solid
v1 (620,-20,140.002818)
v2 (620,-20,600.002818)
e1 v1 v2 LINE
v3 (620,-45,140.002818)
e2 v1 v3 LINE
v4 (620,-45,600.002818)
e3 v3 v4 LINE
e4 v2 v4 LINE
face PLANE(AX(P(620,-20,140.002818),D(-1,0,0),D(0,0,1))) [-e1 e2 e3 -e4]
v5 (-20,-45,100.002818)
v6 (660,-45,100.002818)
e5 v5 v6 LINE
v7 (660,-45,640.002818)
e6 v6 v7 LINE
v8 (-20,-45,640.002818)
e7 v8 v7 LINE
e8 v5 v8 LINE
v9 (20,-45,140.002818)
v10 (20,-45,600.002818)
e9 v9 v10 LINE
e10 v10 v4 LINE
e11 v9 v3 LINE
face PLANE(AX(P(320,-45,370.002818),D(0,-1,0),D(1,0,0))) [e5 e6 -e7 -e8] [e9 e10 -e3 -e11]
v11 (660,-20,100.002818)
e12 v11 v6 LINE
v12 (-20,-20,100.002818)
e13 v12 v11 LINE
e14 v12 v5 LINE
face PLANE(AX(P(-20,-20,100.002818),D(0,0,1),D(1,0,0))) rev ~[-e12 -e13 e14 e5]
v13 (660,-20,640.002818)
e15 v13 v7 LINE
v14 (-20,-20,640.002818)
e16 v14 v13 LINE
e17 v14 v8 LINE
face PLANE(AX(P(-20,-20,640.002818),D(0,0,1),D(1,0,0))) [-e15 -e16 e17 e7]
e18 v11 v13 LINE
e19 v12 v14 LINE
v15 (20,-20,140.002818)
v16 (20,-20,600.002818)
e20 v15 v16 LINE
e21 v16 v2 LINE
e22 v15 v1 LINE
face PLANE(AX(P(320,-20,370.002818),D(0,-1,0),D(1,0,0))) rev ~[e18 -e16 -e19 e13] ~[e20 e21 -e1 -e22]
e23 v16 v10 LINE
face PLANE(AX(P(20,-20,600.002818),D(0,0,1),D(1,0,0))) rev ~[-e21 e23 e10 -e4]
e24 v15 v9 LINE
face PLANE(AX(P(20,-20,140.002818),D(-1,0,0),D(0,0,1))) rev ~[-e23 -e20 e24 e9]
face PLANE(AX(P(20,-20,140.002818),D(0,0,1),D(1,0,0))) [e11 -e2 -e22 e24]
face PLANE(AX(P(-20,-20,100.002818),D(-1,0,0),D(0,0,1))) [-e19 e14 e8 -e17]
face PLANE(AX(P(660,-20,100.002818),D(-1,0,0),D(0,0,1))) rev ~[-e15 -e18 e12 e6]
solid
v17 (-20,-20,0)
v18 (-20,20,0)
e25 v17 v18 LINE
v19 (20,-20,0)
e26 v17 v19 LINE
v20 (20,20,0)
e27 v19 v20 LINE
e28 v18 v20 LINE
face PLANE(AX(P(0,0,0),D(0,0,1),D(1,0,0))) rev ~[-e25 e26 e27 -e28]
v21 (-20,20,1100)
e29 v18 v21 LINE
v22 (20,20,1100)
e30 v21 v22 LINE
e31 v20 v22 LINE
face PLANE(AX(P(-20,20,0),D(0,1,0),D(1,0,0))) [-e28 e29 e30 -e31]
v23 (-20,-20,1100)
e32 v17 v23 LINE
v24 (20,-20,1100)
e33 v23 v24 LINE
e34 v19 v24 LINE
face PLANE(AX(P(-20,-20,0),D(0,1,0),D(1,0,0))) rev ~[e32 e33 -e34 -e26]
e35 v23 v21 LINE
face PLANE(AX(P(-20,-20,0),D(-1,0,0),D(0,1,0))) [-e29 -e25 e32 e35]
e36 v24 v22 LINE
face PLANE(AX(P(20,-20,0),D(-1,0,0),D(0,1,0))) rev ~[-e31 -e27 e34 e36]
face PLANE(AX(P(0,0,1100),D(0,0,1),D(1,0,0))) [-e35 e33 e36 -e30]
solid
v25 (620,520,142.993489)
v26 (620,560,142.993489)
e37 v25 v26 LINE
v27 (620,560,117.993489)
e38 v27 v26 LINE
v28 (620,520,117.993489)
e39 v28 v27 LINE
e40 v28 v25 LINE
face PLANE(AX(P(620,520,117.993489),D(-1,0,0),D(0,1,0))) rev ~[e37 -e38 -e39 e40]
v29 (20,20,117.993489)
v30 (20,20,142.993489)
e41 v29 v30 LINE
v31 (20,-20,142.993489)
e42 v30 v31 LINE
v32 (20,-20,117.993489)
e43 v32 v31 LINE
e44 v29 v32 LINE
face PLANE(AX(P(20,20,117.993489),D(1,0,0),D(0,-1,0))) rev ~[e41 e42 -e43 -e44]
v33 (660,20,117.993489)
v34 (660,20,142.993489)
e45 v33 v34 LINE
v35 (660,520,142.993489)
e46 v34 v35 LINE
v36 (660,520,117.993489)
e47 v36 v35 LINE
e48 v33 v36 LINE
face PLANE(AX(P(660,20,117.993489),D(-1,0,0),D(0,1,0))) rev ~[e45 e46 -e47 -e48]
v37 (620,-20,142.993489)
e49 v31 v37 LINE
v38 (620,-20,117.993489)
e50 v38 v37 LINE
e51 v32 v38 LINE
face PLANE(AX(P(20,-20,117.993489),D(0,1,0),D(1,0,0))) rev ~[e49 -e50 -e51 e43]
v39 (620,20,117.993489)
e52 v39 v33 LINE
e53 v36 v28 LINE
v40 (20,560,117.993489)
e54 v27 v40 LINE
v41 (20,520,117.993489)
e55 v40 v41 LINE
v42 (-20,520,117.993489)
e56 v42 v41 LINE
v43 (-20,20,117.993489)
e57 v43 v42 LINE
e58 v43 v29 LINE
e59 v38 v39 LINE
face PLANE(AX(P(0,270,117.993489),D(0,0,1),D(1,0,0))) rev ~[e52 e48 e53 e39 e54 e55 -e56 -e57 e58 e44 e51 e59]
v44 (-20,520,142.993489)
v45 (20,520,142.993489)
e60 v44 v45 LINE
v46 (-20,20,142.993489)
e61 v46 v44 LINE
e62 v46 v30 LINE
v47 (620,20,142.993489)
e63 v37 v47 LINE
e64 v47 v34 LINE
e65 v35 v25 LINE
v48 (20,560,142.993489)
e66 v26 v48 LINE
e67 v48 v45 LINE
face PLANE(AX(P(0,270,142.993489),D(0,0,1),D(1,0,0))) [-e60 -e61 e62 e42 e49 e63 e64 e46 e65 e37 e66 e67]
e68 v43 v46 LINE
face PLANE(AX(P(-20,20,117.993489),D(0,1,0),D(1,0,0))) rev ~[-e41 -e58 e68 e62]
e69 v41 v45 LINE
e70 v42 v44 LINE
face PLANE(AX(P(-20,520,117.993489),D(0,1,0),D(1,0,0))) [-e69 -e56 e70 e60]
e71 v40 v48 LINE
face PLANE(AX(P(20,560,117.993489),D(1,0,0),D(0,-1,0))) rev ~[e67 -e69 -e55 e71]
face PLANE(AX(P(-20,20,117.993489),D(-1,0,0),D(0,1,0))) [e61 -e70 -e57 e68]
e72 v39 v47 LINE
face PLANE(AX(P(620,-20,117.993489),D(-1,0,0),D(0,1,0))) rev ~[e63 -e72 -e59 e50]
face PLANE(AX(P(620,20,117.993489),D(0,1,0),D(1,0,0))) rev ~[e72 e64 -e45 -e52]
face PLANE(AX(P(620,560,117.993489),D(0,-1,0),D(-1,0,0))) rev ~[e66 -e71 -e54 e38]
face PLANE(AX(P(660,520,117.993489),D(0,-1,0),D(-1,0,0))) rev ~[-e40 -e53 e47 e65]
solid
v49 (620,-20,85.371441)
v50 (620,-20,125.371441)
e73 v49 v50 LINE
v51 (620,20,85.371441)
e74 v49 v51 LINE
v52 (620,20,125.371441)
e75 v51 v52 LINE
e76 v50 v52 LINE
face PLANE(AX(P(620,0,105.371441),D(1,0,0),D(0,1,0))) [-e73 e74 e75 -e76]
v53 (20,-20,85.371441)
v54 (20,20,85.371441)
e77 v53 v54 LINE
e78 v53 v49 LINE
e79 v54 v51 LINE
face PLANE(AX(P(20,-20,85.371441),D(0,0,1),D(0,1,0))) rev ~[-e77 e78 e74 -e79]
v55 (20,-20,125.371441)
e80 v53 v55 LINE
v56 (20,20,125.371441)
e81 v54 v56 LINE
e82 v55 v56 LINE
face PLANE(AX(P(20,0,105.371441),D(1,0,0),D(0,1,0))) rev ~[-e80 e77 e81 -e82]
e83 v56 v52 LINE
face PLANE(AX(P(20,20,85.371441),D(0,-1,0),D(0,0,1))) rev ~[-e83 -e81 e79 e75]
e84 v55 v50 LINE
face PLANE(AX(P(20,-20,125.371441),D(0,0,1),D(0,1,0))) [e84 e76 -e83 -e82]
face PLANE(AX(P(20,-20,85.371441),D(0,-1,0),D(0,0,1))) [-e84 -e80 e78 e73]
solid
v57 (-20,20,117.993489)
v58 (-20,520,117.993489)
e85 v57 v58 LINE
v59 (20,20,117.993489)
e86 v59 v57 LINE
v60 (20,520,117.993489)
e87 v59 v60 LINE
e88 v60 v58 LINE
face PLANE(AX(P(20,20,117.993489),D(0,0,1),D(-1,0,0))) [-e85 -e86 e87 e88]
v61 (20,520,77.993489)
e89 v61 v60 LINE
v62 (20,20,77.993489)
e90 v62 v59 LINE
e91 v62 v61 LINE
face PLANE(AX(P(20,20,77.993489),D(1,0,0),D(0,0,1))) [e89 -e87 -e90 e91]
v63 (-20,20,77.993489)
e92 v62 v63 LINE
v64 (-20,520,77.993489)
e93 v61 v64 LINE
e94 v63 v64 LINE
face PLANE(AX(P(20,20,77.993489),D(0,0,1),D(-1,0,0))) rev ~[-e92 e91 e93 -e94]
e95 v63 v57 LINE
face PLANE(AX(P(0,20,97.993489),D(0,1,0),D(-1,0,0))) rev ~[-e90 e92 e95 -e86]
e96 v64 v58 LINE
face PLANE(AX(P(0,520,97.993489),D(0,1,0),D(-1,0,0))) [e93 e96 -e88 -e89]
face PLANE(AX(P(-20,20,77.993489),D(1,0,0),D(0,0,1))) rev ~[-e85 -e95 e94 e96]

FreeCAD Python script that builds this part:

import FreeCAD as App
import Part
import Sketcher

doc = App.newDocument("Part")
params = doc.addObject("Spreadsheet::Sheet", "Params")
for row, (alias, value) in enumerate([
    ("sketch1_width", "40 mm"),
    ("pad1_length", "1100 mm"),
    ("sketch2_width", "40 mm"),
    ("pad2_length", "600 mm"),
    ("sketch3_width", "40 mm"),
    ("pad3_length", "500 mm"),
    ("sketch4_width", "40 mm"),
    ("sketch4_width2", "600 mm"),
    ("sketch4_height", "500 mm"),
    ("pad4_length", "25 mm"),
    ("sketch5_width", "680 mm"),
    ("sketch5_width2", "600 mm"),
    ("sketch5_height", "540 mm"),
    ("sketch5_height2", "460 mm"),
    ("pad5_length", "25 mm"),
], start=1):
    params.set(f"A{row}", alias)
    params.set(f"B{row}", "=" + value)
    params.setAlias(f"B{row}", alias)

body = doc.addObject("PartDesign::Body", "Body")

# Sketch on XY plane
sketch1 = doc.addObject("Sketcher::SketchObject", "Sketch")
body.addObject(sketch1)
sketch1.AttachmentSupport = (doc.XY_Plane, [""])
sketch1.MapMode = "FlatFace"
sketch1.addGeometry([
    Part.LineSegment(App.Vector(-20, 20, 0), App.Vector(-20, -20, 0)),
    Part.LineSegment(App.Vector(-20, -20, 0), App.Vector(20, -20, 0)),
    Part.LineSegment(App.Vector(20, -20, 0), App.Vector(20, 20, 0)),
    Part.LineSegment(App.Vector(20, 20, 0), App.Vector(-20, 20, 0)),
], False)
sketch1.addConstraint([
    Sketcher.Constraint("Coincident", 0, 2, 1, 1),
    Sketcher.Constraint("Coincident", 1, 2, 2, 1),
    Sketcher.Constraint("Coincident", 2, 2, 3, 1),
    Sketcher.Constraint("Coincident", 3, 2, 0, 1),
    Sketcher.Constraint("Vertical", 0),
    Sketcher.Constraint("Horizontal", 1),
    Sketcher.Constraint("Vertical", 2),
    Sketcher.Constraint("Horizontal", 3),
    Sketcher.Constraint("Symmetric", 0, 2, 2, 2, -1, 1),
    Sketcher.Constraint("Equal", 3, 0),
    Sketcher.Constraint("DistanceX", 1, 1, 1, 2, 40.0),
])
sketch1.setExpression("Constraints[10]", "Params.sketch1_width")
pad1 = doc.addObject("PartDesign::Pad", "Pad")
body.addObject(pad1)
pad1.Profile = sketch1
pad1.setExpression("Length", "Params.pad1_length")
body2 = doc.addObject("PartDesign::Body", "Body001")

# Sketch on YZ plane
sketch2 = doc.addObject("Sketcher::SketchObject", "Sketch001")
body2.addObject(sketch2)
sketch2.AttachmentSupport = (doc.getObject("YZ_Plane001"), [""])
sketch2.MapMode = "FlatFace"
sketch2.AttachmentOffset = App.Placement(App.Vector(0, 0, 20), App.Rotation())
sketch2.addGeometry([
    Part.LineSegment(App.Vector(-20, 125.371441, 0), App.Vector(-20, 85.371441, 0)),
    Part.LineSegment(App.Vector(-20, 85.371441, 0), App.Vector(20, 85.371441, 0)),
    Part.LineSegment(App.Vector(20, 85.371441, 0), App.Vector(20, 125.371441, 0)),
    Part.LineSegment(App.Vector(20, 125.371441, 0), App.Vector(-20, 125.371441, 0)),
], False)
sketch2.addConstraint([
    Sketcher.Constraint("Coincident", 0, 2, 1, 1),
    Sketcher.Constraint("Coincident", 1, 2, 2, 1),
    Sketcher.Constraint("Coincident", 2, 2, 3, 1),
    Sketcher.Constraint("Coincident", 3, 2, 0, 1),
    Sketcher.Constraint("Vertical", 0),
    Sketcher.Constraint("Horizontal", 1),
    Sketcher.Constraint("Vertical", 2),
    Sketcher.Constraint("Horizontal", 3),
    Sketcher.Constraint("Equal", 3, 0),
    Sketcher.Constraint("DistanceX", 1, 1, 1, 2, 40.0),
    Sketcher.Constraint("DistanceX", 0, 2, -1, 1, 20.0),
    Sketcher.Constraint("DistanceY", -1, 1, 0, 2, 85.371441),
])
sketch2.setExpression("Constraints[9]", "Params.sketch2_width")
pad2 = doc.addObject("PartDesign::Pad", "Pad001")
body2.addObject(pad2)
pad2.Profile = sketch2
pad2.setExpression("Length", "Params.pad2_length")
body3 = doc.addObject("PartDesign::Body", "Body002")

# Sketch on XZ plane
sketch3 = doc.addObject("Sketcher::SketchObject", "Sketch002")
body3.addObject(sketch3)
sketch3.AttachmentSupport = (doc.getObject("XZ_Plane002"), [""])
sketch3.MapMode = "FlatFace"
sketch3.AttachmentOffset = App.Placement(App.Vector(0, 0, -20), App.Rotation())
sketch3.addGeometry([
    Part.LineSegment(App.Vector(20, 117.993489, 0), App.Vector(20, 77.993489, 0)),
    Part.LineSegment(App.Vector(20, 77.993489, 0), App.Vector(-20, 77.993489, 0)),
    Part.LineSegment(App.Vector(-20, 77.993489, 0), App.Vector(-20, 117.993489, 0)),
    Part.LineSegment(App.Vector(-20, 117.993489, 0), App.Vector(20, 117.993489, 0)),
], False)
sketch3.addConstraint([
    Sketcher.Constraint("Coincident", 0, 2, 1, 1),
    Sketcher.Constraint("Coincident", 1, 2, 2, 1),
    Sketcher.Constraint("Coincident", 2, 2, 3, 1),
    Sketcher.Constraint("Coincident", 3, 2, 0, 1),
    Sketcher.Constraint("Vertical", 0),
    Sketcher.Constraint("Horizontal", 1),
    Sketcher.Constraint("Vertical", 2),
    Sketcher.Constraint("Horizontal", 3),
    Sketcher.Constraint("Equal", 3, 0),
    Sketcher.Constraint("DistanceX", 1, 2, 1, 1, 40.0),
    Sketcher.Constraint("DistanceX", -1, 1, 0, 2, 20.0),
    Sketcher.Constraint("DistanceY", -1, 1, 0, 2, 77.993489),
])
sketch3.setExpression("Constraints[9]", "Params.sketch3_width")
pad3 = doc.addObject("PartDesign::Pad", "Pad002")
body3.addObject(pad3)
pad3.Profile = sketch3
pad3.setExpression("Length", "Params.pad3_length")
pad3.Reversed = True
body4 = doc.addObject("PartDesign::Body", "Body003")

# Sketch on XY plane
sketch4 = doc.addObject("Sketcher::SketchObject", "Sketch003")
body4.addObject(sketch4)
sketch4.AttachmentSupport = (doc.getObject("XY_Plane003"), [""])
sketch4.MapMode = "FlatFace"
sketch4.AttachmentOffset = App.Placement(App.Vector(0, 0, 117.993489), App.Rotation())
sketch4.addGeometry([
    Part.LineSegment(App.Vector(-20, 520, 0), App.Vector(-20, 20, 0)),  # 0
    Part.LineSegment(App.Vector(-20, 20, 0), App.Vector(20, 20, 0)),  # 1
    Part.LineSegment(App.Vector(20, 20, 0), App.Vector(20, -20, 0)),  # 2
    Part.LineSegment(App.Vector(20, -20, 0), App.Vector(620, -20, 0)),  # 3
    Part.LineSegment(App.Vector(620, -20, 0), App.Vector(620, 20, 0)),  # 4
    Part.LineSegment(App.Vector(620, 20, 0), App.Vector(660, 20, 0)),  # 5
    Part.LineSegment(App.Vector(660, 20, 0), App.Vector(660, 520, 0)),  # 6
    Part.LineSegment(App.Vector(660, 520, 0), App.Vector(620, 520, 0)),  # 7
    Part.LineSegment(App.Vector(620, 520, 0), App.Vector(620, 560, 0)),  # 8
    Part.LineSegment(App.Vector(620, 560, 0), App.Vector(20, 560, 0)),  # 9
    Part.LineSegment(App.Vector(20, 560, 0), App.Vector(20, 520, 0)),  # 10
    Part.LineSegment(App.Vector(20, 520, 0), App.Vector(-20, 520, 0)),  # 11
], False)
sketch4.addConstraint([
    Sketcher.Constraint("Coincident", 0, 2, 1, 1),
    Sketcher.Constraint("Coincident", 1, 2, 2, 1),
    Sketcher.Constraint("Coincident", 2, 2, 3, 1),
    Sketcher.Constraint("Coincident", 3, 2, 4, 1),
    Sketcher.Constraint("Coincident", 4, 2, 5, 1),
    Sketcher.Constraint("Coincident", 5, 2, 6, 1),
    Sketcher.Constraint("Coincident", 6, 2, 7, 1),
    Sketcher.Constraint("Coincident", 7, 2, 8, 1),
    Sketcher.Constraint("Coincident", 8, 2, 9, 1),
    Sketcher.Constraint("Coincident", 9, 2, 10, 1),
    Sketcher.Constraint("Coincident", 10, 2, 11, 1),
    Sketcher.Constraint("Coincident", 11, 2, 0, 1),
    Sketcher.Constraint("Vertical", 0),
    Sketcher.Constraint("Horizontal", 1),
    Sketcher.Constraint("Vertical", 2),
    Sketcher.Constraint("Horizontal", 3),
    Sketcher.Constraint("Vertical", 4),
    Sketcher.Constraint("Horizontal", 5),
    Sketcher.Constraint("Vertical", 6),
    Sketcher.Constraint("Horizontal", 7),
    Sketcher.Constraint("Vertical", 8),
    Sketcher.Constraint("Horizontal", 9),
    Sketcher.Constraint("Vertical", 10),
    Sketcher.Constraint("Horizontal", 11),
    Sketcher.Constraint("Symmetric", 0, 2, 2, 2, -1, 1),
    Sketcher.Constraint("Horizontal", 1, 2, 4, 2),
    Sketcher.Constraint("Horizontal", 7, 2, 10, 2),
    Sketcher.Constraint("Vertical", 4, 2, 7, 2),
    Sketcher.Constraint("Vertical", 2, 2, 9, 2),
    Sketcher.Constraint("Equal", 1, 5),
    Sketcher.Constraint("Equal", 11, 2),
    Sketcher.Constraint("Equal", 4, 8),
    Sketcher.Constraint("DistanceX", 1, 1, 1, 2, 40.0),
    Sketcher.Constraint("DistanceX", 3, 1, 3, 2, 600.0),
    Sketcher.Constraint("DistanceY", 0, 2, 0, 1, 500.0),
])
sketch4.setExpression("Constraints[32]", "Params.sketch4_width")
sketch4.setExpression("Constraints[33]", "Params.sketch4_width2")
sketch4.setExpression("Constraints[34]", "Params.sketch4_height")
pad4 = doc.addObject("PartDesign::Pad", "Pad003")
body4.addObject(pad4)
pad4.Profile = sketch4
pad4.setExpression("Length", "Params.pad4_length")
body5 = doc.addObject("PartDesign::Body", "Body004")

# Sketch on XZ plane
sketch5 = doc.addObject("Sketcher::SketchObject", "Sketch004")
body5.addObject(sketch5)
sketch5.AttachmentSupport = (doc.getObject("XZ_Plane004"), [""])
sketch5.MapMode = "FlatFace"
sketch5.AttachmentOffset = App.Placement(App.Vector(0, 0, 20), App.Rotation())
sketch5.addGeometry([
    Part.LineSegment(App.Vector(-20, 640.002818, 0), App.Vector(-20, 100.002818, 0)),  # 0
    Part.LineSegment(App.Vector(-20, 100.002818, 0), App.Vector(660, 100.002818, 0)),  # 1
    Part.LineSegment(App.Vector(660, 100.002818, 0), App.Vector(660, 640.002818, 0)),  # 2
    Part.LineSegment(App.Vector(660, 640.002818, 0), App.Vector(-20, 640.002818, 0)),  # 3
    Part.LineSegment(App.Vector(620, 140.002818, 0), App.Vector(20, 140.002818, 0)),  # 4
    Part.LineSegment(App.Vector(20, 140.002818, 0), App.Vector(20, 600.002818, 0)),  # 5
    Part.LineSegment(App.Vector(20, 600.002818, 0), App.Vector(620, 600.002818, 0)),  # 6
    Part.LineSegment(App.Vector(620, 600.002818, 0), App.Vector(620, 140.002818, 0)),  # 7
], False)
sketch5.addConstraint([
    Sketcher.Constraint("Coincident", 0, 2, 1, 1),
    Sketcher.Constraint("Coincident", 1, 2, 2, 1),
    Sketcher.Constraint("Coincident", 2, 2, 3, 1),
    Sketcher.Constraint("Coincident", 3, 2, 0, 1),
    Sketcher.Constraint("Coincident", 4, 2, 5, 1),
    Sketcher.Constraint("Coincident", 5, 2, 6, 1),
    Sketcher.Constraint("Coincident", 6, 2, 7, 1),
    Sketcher.Constraint("Coincident", 7, 2, 4, 1),
    Sketcher.Constraint("Vertical", 0),
    Sketcher.Constraint("Horizontal", 1),
    Sketcher.Constraint("Vertical", 2),
    Sketcher.Constraint("Horizontal", 3),
    Sketcher.Constraint("Horizontal", 4),
    Sketcher.Constraint("Vertical", 5),
    Sketcher.Constraint("Horizontal", 6),
    Sketcher.Constraint("Vertical", 7),
    Sketcher.Constraint("DistanceX", 1, 1, 1, 2, 680.0),
    Sketcher.Constraint("DistanceX", 4, 2, 4, 1, 600.0),
    Sketcher.Constraint("DistanceY", 0, 2, 0, 1, 540.0),
    Sketcher.Constraint("DistanceY", 5, 1, 5, 2, 460.0),
    Sketcher.Constraint("DistanceX", 0, 2, -1, 1, 20.0),
    Sketcher.Constraint("DistanceX", -1, 1, 4, 2, 20.0),
    Sketcher.Constraint("DistanceY", 0, 2, 4, 2, 40.0),
    Sketcher.Constraint("DistanceY", -1, 1, 0, 2, 100.002818),
])
sketch5.setExpression("Constraints[16]", "Params.sketch5_width")
sketch5.setExpression("Constraints[17]", "Params.sketch5_width2")
sketch5.setExpression("Constraints[18]", "Params.sketch5_height")
sketch5.setExpression("Constraints[19]", "Params.sketch5_height2")
pad5 = doc.addObject("PartDesign::Pad", "Pad004")
body5.addObject(pad5)
pad5.Profile = sketch5
pad5.setExpression("Length", "Params.pad5_length")

doc.recompute()
